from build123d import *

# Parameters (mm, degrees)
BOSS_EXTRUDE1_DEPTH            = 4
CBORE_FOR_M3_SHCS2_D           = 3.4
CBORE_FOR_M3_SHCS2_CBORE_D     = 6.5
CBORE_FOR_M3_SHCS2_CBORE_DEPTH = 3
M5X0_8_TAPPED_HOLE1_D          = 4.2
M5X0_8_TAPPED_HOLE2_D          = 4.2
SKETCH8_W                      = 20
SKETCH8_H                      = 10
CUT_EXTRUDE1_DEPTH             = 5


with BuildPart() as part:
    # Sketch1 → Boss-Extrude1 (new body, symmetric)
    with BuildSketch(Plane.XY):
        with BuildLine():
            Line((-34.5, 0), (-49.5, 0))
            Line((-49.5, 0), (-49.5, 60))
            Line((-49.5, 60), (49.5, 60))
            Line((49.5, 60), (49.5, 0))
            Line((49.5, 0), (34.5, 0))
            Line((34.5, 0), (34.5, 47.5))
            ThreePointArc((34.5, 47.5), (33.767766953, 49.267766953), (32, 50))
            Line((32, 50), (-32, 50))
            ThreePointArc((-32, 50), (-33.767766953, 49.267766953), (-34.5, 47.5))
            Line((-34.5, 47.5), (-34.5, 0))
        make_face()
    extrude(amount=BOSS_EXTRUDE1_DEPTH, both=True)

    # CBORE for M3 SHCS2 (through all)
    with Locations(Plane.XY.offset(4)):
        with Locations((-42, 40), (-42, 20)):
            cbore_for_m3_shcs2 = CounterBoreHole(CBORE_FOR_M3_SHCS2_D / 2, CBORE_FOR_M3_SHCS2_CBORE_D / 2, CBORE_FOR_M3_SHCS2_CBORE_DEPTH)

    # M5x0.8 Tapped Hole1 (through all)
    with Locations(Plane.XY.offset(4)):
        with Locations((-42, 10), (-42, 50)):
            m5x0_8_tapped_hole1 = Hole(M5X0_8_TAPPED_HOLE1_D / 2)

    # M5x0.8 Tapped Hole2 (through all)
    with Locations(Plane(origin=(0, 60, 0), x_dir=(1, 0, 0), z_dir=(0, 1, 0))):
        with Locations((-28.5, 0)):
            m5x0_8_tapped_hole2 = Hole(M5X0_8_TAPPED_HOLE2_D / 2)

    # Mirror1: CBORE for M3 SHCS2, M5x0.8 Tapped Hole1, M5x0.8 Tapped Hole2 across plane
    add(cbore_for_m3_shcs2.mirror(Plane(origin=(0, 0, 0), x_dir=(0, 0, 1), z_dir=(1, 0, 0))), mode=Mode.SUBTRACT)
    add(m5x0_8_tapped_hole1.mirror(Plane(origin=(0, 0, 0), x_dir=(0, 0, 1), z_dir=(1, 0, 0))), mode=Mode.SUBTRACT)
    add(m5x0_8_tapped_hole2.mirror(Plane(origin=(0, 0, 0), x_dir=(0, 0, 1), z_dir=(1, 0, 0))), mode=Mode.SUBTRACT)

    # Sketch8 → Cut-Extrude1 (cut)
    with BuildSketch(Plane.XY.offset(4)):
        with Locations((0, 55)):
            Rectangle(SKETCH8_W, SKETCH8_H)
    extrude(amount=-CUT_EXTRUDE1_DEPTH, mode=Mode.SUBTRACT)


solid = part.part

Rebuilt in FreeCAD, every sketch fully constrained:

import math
import FreeCAD as App
import Part
import Sketcher
from FreeCAD import Vector

doc = App.newDocument("Part")
body = doc.addObject("PartDesign::Body", "Body")

sketch1 = body.newObject("Sketcher::SketchObject", "Sketch")
sketch1.AttachmentSupport = (doc.getObject("XY_Plane"), [""])
sketch1.MapMode = "FlatFace"
sketch1.addGeometry([
    Part.LineSegment(Vector(-49.5, 0, 0), Vector(-34.5, 0, 0)),
    Part.LineSegment(Vector(-34.5, 0, 0), Vector(-34.5, 47.5, 0)),
    Part.ArcOfCircle(Part.Circle(Vector(-32, 47.5, 0), Vector(0, 0, 1), 2.5), math.radians(90), math.radians(180)),
    Part.LineSegment(Vector(-32, 50, 0), Vector(32, 50, 0)),
    Part.ArcOfCircle(Part.Circle(Vector(32, 47.5, 0), Vector(0, 0, 1), 2.5), math.radians(0), math.radians(90)),
    Part.LineSegment(Vector(34.5, 47.5, 0), Vector(34.5, 0, 0)),
    Part.LineSegment(Vector(34.5, 0, 0), Vector(49.5, 0, 0)),
    Part.LineSegment(Vector(49.5, 0, 0), Vector(49.5, 60, 0)),
    Part.LineSegment(Vector(49.5, 60, 0), Vector(-49.5, 60, 0)),
    Part.LineSegment(Vector(-49.5, 60, 0), Vector(-49.5, 0, 0)),
], False)
sketch1.addConstraint([
    Sketcher.Constraint("Coincident", 0, 2, 1, 1),
    Sketcher.Constraint("Tangent", 1, 2, 2, 2),
    Sketcher.Constraint("Tangent", 2, 1, 3, 1),
    Sketcher.Constraint("Tangent", 3, 2, 4, 2),
    Sketcher.Constraint("Tangent", 4, 1, 5, 1),
    Sketcher.Constraint("Coincident", 5, 2, 6, 1),
    Sketcher.Constraint("Coincident", 6, 2, 7, 1),
    Sketcher.Constraint("Coincident", 7, 2, 8, 1),
    Sketcher.Constraint("Coincident", 8, 2, 9, 1),
    Sketcher.Constraint("Coincident", 9, 2, 0, 1),
    Sketcher.Constraint("Horizontal", 0),
    Sketcher.Constraint("Vertical", 1),
    Sketcher.Constraint("Horizontal", 3),
    Sketcher.Constraint("Vertical", 5),
    Sketcher.Constraint("Horizontal", 6),
    Sketcher.Constraint("Vertical", 7),
    Sketcher.Constraint("Horizontal", 8),
    Sketcher.Constraint("Vertical", 9),
    Sketcher.Constraint("Equal", 2, 4),
    Sketcher.Constraint("Symmetric", 0, 2, 5, 2, -1, 1),
    Sketcher.Constraint("Symmetric", 6, 2, 9, 2, -2),
    Sketcher.Constraint("Radius", 2, 2.5),
    Sketcher.Constraint("DistanceX", 0, 1, 0, 2, 15.0),
    Sketcher.Constraint("DistanceX", 3, 1, 3, 2, 64.0),
    Sketcher.Constraint("DistanceY", 7, 1, 7, 2, 60.0),
    Sketcher.Constraint("DistanceY", 1, 1, 1, 2, 47.5),
])
pad1 = body.newObject("PartDesign::Pad", "Pad")
pad1.Profile = sketch1
pad1.Length = 8
pad1.Midplane = True

sketch2 = body.newObject("Sketcher::SketchObject", "Sketch001")
sketch2.AttachmentSupport = (doc.getObject("XY_Plane"), [""])
sketch2.MapMode = "FlatFace"
sketch2.AttachmentOffset = App.Placement(Vector(0, 0, 4), App.Rotation())
sketch2.addGeometry([
    Part.Circle(Vector(-42, 40, 0), Vector(0, 0, 1), 1.7),
    Part.Circle(Vector(-42, 20, 0), Vector(0, 0, 1), 1.7),
], False)
sketch2.addConstraint([
    Sketcher.Constraint("Equal", 0, 1),
    Sketcher.Constraint("Vertical", 0, 3, 1, 3),
    Sketcher.Constraint("Diameter", 0, 3.4),
    Sketcher.Constraint("DistanceX", 0, 3, -1, 1, 42.0),
    Sketcher.Constraint("DistanceY", -1, 1, 0, 3, 40.0),
    Sketcher.Constraint("DistanceY", -1, 1, 1, 3, 20.0),
])
doc.recompute()
hole = body.newObject("PartDesign::Hole", "Hole")
hole.Profile = sketch2
hole.ThreadType = "None"
hole.Diameter = 3.4
hole.DepthType = "ThroughAll"
hole.HoleCutType = "Counterbore"
hole.HoleCutDiameter = 6.5
hole.HoleCutDepth = 3

sketch3 = body.newObject("Sketcher::SketchObject", "Sketch002")
sketch3.AttachmentSupport = (doc.getObject("XY_Plane"), [""])
sketch3.MapMode = "FlatFace"
sketch3.AttachmentOffset = App.Placement(Vector(0, 0, 4), App.Rotation())
sketch3.addGeometry([
    Part.Circle(Vector(-42, 10, 0), Vector(0, 0, 1), 2.1),
    Part.Circle(Vector(-42, 50, 0), Vector(0, 0, 1), 2.1),
], False)
sketch3.addConstraint([
    Sketcher.Constraint("Equal", 0, 1),
    Sketcher.Constraint("Vertical", 0, 3, 1, 3),
    Sketcher.Constraint("Diameter", 0, 4.2),
    Sketcher.Constraint("DistanceX", 0, 3, -1, 1, 42.0),
    Sketcher.Constraint("DistanceY", -1, 1, 0, 3, 10.0),
    Sketcher.Constraint("DistanceY", -1, 1, 1, 3, 50.0),
])
doc.recompute()
hole2 = body.newObject("PartDesign::Hole", "Hole001")
hole2.Profile = sketch3
hole2.ThreadType = "None"
hole2.Diameter = 4.2
hole2.DepthType = "ThroughAll"

sketch4 = body.newObject("Sketcher::SketchObject", "Sketch003")
sketch4.AttachmentSupport = (doc.getObject("XZ_Plane"), [""])
sketch4.MapMode = "FlatFace"
sketch4.AttachmentOffset = App.Placement(Vector(0, 0, -60), App.Rotation())
sketch4.addGeometry(Part.Circle(Vector(-28.5, 0, 0), Vector(0, 0, 1), 2.1), False)
sketch4.addConstraint([
    Sketcher.Constraint("PointOnObject", 0, 3, -1),
    Sketcher.Constraint("Diameter", 0, 4.2),
    Sketcher.Constraint("DistanceX", 0, 3, -1, 1, 28.5),
])
doc.recompute()
hole3 = body.newObject("PartDesign::Hole", "Hole002")
hole3.Profile = sketch4
hole3.ThreadType = "None"
hole3.Diameter = 4.2
hole3.DepthType = "ThroughAll"
hole3.Reversed = True
doc.recompute()

mirrored = body.newObject("PartDesign::Mirrored", "Mirrored")
mirrored.Originals = [hole, hole2, hole3]
mirrored.MirrorPlane = (doc.getObject("YZ_Plane"), [""])
body.Tip = mirrored

sketch5 = body.newObject("Sketcher::SketchObject", "Sketch004")
sketch5.AttachmentSupport = (doc.getObject("XY_Plane"), [""])
sketch5.MapMode = "FlatFace"
sketch5.AttachmentOffset = App.Placement(Vector(0, 0, 4), App.Rotation())
sketch5.addGeometry([
    Part.LineSegment(Vector(-10, 60, 0), Vector(-10, 50, 0)),
    Part.LineSegment(Vector(-10, 50, 0), Vector(10, 50, 0)),
    Part.LineSegment(Vector(10, 50, 0), Vector(10, 60, 0)),
    Part.LineSegment(Vector(10, 60, 0), Vector(-10, 60, 0)),
], False)
sketch5.addConstraint([
    Sketcher.Constraint("Coincident", 0, 2, 1, 1),
    Sketcher.Constraint("Coincident", 1, 2, 2, 1),
    Sketcher.Constraint("Coincident", 2, 2, 3, 1),
    Sketcher.Constraint("Coincident", 3, 2, 0, 1),
    Sketcher.Constraint("Vertical", 0),
    Sketcher.Constraint("Horizontal", 1),
    Sketcher.Constraint("Vertical", 2),
    Sketcher.Constraint("Horizontal", 3),
    Sketcher.Constraint("DistanceX", 1, 1, 1, 2, 20.0),
    Sketcher.Constraint("DistanceY", 0, 2, 0, 1, 10.0),
    Sketcher.Constraint("DistanceX", 0, 2, -1, 1, 10.0),
    Sketcher.Constraint("DistanceY", -1, 1, 0, 2, 50.0),
])
pocket1 = body.newObject("PartDesign::Pocket", "Pocket")
pocket1.Profile = sketch5
pocket1.Length = 5

doc.recompute()
